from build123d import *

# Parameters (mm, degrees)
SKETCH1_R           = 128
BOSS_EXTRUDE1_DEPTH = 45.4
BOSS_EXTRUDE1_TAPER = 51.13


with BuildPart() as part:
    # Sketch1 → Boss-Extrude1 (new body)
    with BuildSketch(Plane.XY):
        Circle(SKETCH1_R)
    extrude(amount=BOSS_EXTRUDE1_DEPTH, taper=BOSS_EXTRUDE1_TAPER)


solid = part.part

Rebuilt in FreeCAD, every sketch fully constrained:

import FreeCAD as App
import Part
import Sketcher
from FreeCAD import Vector
Q = App.Units.Quantity

doc = App.newDocument("Part")
body = doc.addObject("PartDesign::Body", "Body")

sketch1 = body.newObject("Sketcher::SketchObject", "Sketch")
sketch1.AttachmentSupport = (doc.getObject("XY_Plane"), [""])
sketch1.MapMode = "FlatFace"
sketch1.addGeometry(Part.Circle(Vector(0, 0, 0), Vector(0, 0, 1), 128), False)
sketch1.addConstraint(Sketcher.Constraint("Coincident", 0, 3, -1, 1))
sketch1.addConstraint(Sketcher.Constraint("Diameter", 0, Q("256 mm")))
pad1 = body.newObject("PartDesign::Pad", "Pad")
pad1.Profile = sketch1
pad1.Length = 45.4
pad1.TaperAngle = -51.13

doc.recompute()
